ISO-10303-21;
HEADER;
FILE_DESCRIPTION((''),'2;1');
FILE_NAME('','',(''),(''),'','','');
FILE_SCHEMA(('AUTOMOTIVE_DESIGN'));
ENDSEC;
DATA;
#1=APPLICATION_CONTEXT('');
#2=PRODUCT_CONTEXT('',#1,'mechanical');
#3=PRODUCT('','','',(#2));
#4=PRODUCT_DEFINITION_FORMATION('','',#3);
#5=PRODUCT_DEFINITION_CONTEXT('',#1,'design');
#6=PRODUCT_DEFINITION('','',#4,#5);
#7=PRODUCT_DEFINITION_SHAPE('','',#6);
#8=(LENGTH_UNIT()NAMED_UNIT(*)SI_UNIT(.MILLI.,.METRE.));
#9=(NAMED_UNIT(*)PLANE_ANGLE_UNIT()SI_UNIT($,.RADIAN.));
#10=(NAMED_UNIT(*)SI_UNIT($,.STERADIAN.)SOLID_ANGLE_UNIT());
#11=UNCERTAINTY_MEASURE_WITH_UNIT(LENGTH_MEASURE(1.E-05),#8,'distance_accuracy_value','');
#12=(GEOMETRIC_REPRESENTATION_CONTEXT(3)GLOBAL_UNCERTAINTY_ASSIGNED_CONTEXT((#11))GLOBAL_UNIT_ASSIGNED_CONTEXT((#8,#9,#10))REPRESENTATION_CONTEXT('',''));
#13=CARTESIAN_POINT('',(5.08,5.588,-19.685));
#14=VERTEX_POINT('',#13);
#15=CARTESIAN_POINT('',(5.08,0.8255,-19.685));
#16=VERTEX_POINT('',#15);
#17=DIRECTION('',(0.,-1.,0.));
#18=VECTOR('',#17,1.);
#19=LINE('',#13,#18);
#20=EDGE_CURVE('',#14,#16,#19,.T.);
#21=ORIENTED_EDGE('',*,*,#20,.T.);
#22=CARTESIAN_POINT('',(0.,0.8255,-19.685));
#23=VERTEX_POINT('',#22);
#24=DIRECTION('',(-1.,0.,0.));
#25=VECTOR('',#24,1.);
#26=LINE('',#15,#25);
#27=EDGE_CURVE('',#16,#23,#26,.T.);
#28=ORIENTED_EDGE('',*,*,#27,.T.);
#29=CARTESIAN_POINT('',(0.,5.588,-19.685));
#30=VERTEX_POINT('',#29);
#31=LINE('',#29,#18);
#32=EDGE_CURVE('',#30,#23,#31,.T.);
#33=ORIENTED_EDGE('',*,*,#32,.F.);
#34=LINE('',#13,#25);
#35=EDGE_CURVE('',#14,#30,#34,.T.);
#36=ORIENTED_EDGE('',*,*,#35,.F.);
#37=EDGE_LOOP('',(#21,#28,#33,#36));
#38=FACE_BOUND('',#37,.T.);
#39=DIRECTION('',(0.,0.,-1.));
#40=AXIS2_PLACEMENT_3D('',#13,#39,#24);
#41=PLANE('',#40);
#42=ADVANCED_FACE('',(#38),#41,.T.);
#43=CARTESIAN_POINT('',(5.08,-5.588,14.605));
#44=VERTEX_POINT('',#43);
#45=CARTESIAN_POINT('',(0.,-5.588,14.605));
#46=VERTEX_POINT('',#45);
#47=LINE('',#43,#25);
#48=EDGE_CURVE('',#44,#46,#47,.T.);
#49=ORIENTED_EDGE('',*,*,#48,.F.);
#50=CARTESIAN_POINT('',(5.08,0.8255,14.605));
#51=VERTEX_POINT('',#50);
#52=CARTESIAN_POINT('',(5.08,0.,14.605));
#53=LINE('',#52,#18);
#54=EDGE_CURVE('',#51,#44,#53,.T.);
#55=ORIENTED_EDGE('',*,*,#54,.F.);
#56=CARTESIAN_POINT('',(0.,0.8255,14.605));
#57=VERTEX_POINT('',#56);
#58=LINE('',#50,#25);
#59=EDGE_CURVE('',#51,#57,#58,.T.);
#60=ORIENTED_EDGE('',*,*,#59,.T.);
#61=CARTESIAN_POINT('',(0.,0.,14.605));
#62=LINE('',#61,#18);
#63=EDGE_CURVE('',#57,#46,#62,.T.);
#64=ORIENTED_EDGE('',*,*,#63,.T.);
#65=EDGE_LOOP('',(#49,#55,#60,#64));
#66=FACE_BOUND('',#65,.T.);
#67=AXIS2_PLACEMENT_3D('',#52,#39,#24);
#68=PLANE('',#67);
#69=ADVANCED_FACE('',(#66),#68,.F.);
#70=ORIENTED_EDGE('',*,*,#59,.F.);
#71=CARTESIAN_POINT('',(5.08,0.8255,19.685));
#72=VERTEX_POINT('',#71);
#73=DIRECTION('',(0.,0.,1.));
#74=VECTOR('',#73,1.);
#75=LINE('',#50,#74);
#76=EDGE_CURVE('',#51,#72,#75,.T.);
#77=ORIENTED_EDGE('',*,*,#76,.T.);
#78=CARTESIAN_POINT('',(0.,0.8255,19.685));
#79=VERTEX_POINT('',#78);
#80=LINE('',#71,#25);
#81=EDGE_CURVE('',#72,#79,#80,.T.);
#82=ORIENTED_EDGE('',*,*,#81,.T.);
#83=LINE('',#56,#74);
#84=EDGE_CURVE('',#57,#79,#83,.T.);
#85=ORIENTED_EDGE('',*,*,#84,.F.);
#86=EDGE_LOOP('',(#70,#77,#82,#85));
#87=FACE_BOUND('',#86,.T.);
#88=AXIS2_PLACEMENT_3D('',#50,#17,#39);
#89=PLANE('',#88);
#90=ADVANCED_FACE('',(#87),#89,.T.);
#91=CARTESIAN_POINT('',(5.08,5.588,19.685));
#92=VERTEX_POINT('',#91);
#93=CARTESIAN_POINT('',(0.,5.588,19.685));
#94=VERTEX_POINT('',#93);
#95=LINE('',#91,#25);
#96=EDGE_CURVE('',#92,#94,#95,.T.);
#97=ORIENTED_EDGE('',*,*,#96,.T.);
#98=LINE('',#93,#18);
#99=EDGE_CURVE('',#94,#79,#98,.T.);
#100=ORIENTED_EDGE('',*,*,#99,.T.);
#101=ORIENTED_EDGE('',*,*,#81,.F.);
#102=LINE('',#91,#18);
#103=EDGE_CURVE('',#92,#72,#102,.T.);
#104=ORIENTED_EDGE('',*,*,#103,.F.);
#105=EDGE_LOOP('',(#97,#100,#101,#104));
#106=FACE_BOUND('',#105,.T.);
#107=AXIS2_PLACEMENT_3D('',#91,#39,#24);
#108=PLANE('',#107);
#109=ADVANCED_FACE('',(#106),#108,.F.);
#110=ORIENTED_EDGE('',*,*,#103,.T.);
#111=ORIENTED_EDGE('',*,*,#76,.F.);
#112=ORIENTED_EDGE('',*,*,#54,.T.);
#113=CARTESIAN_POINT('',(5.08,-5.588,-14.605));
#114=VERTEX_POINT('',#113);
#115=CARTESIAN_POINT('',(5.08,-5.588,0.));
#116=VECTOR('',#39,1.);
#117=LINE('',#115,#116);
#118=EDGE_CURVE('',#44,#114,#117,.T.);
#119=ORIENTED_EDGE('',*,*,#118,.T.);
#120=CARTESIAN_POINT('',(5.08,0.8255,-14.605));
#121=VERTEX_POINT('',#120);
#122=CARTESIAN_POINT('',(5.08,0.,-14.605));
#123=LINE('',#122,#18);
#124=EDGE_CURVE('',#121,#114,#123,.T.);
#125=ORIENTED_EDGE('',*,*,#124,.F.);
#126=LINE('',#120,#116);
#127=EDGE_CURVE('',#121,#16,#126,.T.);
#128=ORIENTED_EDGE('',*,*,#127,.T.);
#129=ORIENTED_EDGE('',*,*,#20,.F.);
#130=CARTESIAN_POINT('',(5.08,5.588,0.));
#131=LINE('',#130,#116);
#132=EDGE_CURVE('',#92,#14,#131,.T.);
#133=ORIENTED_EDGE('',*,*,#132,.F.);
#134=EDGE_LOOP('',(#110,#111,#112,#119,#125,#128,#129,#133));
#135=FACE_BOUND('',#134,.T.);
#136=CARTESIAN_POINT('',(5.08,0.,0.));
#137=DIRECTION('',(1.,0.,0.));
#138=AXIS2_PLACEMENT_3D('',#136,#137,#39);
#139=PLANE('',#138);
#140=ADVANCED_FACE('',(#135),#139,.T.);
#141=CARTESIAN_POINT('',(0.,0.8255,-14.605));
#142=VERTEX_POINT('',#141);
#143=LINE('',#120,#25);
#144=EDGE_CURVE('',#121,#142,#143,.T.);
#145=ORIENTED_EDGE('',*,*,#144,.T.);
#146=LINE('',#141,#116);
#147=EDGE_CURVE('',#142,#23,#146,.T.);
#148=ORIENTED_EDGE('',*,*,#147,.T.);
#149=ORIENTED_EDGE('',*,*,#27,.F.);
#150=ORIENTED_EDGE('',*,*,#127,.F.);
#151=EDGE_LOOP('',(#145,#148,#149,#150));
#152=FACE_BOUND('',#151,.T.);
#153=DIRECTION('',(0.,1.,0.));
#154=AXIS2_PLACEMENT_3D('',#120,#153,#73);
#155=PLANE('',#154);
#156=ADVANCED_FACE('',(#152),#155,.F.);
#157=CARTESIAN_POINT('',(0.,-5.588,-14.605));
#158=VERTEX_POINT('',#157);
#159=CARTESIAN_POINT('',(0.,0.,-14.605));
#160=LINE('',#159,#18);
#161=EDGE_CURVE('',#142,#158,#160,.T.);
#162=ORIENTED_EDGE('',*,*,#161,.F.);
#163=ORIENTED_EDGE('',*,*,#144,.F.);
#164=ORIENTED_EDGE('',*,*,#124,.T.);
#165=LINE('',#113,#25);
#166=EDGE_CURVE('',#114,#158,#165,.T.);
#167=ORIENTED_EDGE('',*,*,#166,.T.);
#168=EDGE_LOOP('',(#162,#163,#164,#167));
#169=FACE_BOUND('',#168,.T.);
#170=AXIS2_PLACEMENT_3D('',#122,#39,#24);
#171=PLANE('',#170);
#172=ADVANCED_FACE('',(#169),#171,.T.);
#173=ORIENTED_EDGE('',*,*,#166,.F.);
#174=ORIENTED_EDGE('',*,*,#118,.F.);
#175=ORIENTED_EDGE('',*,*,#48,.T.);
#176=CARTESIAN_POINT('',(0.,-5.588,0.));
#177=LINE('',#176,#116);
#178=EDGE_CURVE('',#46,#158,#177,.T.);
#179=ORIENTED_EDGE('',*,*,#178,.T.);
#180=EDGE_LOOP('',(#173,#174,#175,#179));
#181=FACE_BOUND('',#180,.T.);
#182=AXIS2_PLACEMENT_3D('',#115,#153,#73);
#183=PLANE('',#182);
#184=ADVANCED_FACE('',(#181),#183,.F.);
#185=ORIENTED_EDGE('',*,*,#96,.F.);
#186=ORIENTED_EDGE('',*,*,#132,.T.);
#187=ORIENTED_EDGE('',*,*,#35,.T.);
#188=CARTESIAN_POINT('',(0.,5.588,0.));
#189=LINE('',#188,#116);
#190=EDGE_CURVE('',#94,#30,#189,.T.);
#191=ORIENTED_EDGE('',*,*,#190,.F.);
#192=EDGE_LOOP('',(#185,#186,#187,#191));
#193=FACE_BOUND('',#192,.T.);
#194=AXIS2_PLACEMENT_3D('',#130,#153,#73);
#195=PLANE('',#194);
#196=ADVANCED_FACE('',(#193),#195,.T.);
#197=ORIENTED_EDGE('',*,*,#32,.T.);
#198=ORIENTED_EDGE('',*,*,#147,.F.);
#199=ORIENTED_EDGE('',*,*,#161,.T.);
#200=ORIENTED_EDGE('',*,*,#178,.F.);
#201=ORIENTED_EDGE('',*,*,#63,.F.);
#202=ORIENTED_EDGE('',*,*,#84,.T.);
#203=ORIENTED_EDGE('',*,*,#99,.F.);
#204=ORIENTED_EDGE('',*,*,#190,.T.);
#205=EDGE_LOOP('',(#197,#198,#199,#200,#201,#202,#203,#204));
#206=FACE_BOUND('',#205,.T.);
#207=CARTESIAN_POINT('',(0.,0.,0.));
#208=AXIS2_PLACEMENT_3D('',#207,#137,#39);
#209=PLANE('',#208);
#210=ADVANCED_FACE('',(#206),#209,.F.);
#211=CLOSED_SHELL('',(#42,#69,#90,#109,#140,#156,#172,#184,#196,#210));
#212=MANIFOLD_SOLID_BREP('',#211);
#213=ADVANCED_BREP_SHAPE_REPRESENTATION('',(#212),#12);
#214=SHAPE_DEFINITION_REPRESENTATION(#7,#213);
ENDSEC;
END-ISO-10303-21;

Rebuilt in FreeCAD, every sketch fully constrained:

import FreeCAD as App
import Part
import Sketcher
from FreeCAD import Vector
Q = App.Units.Quantity

doc = App.newDocument("Part")
params = doc.addObject("Spreadsheet::Sheet", "Params")
for row, (alias, value) in enumerate([
    ("sketch1_height", "0.2 in"),
    ("sketch1_height2", "1.15 in"),
    ("sketch1_width", "0.1875 in"),
    ("pad1_length", "0.2 in"),
], start=1):
    params.set(f"A{row}", alias)
    params.set(f"B{row}", "=" + value)
    params.setAlias(f"B{row}", alias)

body = doc.addObject("PartDesign::Body", "Body")

# Sketch on YZ plane
sketch1 = body.newObject("Sketcher::SketchObject", "Sketch")
sketch1.AttachmentSupport = (doc.getObject("YZ_Plane"), [""])
sketch1.MapMode = "FlatFace"
sketch1.addGeometry([
    Part.LineSegment(Vector(0.8, 14.6, 0), Vector(-5.6, 14.6, 0)),  # 0
    Part.LineSegment(Vector(-5.6, 14.6, 0), Vector(-5.6, -14.6, 0)),  # 1
    Part.LineSegment(Vector(-5.6, -14.6, 0), Vector(0.8, -14.6, 0)),  # 2
    Part.LineSegment(Vector(0.8, -14.6, 0), Vector(0.8, -19.7, 0)),  # 3
    Part.LineSegment(Vector(0.8, -19.7, 0), Vector(5.6, -19.7, 0)),  # 4
    Part.LineSegment(Vector(5.6, -19.7, 0), Vector(5.6, 19.7, 0)),  # 5
    Part.LineSegment(Vector(5.6, 19.7, 0), Vector(0.8, 19.7, 0)),  # 6
    Part.LineSegment(Vector(0.8, 19.7, 0), Vector(0.8, 14.6, 0)),  # 7
], False)
sketch1.addConstraint([
    Sketcher.Constraint("Coincident", 0, 2, 1, 1),
    Sketcher.Constraint("Coincident", 1, 2, 2, 1),
    Sketcher.Constraint("Coincident", 2, 2, 3, 1),
    Sketcher.Constraint("Coincident", 3, 2, 4, 1),
    Sketcher.Constraint("Coincident", 4, 2, 5, 1),
    Sketcher.Constraint("Coincident", 5, 2, 6, 1),
    Sketcher.Constraint("Coincident", 6, 2, 7, 1),
    Sketcher.Constraint("Coincident", 7, 2, 0, 1),
    Sketcher.Constraint("Horizontal", 0),
    Sketcher.Constraint("Vertical", 1),
    Sketcher.Constraint("Horizontal", 2),
    Sketcher.Constraint("Vertical", 3),
    Sketcher.Constraint("Horizontal", 4),
    Sketcher.Constraint("Vertical", 5),
    Sketcher.Constraint("Horizontal", 6),
    Sketcher.Constraint("Vertical", 7),
    Sketcher.Constraint("Symmetric", 3, 2, 6, 2, -1),
    Sketcher.Constraint("Equal", 3, 7),
    Sketcher.Constraint("DistanceY", 3, 2, 3, 1, Q("0.2 in")),
    Sketcher.Constraint("DistanceY", 1, 2, 1, 1, Q("1.15 in")),
    Sketcher.Constraint("DistanceX", 4, 1, 4, 2, Q("0.1875 in")),
    Sketcher.Constraint("DistanceX", 0, 2, -1, 1, Q("0.22 in")),
    Sketcher.Constraint("DistanceX", -1, 1, 4, 2, Q("0.22 in")),
])
sketch1.setExpression("Constraints[18]", "Params.sketch1_height")
sketch1.setExpression("Constraints[19]", "Params.sketch1_height2")
sketch1.setExpression("Constraints[20]", "Params.sketch1_width")
pad1 = body.newObject("PartDesign::Pad", "Pad")
pad1.Profile = sketch1
pad1.setExpression("Length", "Params.pad1_length")

doc.recompute()
